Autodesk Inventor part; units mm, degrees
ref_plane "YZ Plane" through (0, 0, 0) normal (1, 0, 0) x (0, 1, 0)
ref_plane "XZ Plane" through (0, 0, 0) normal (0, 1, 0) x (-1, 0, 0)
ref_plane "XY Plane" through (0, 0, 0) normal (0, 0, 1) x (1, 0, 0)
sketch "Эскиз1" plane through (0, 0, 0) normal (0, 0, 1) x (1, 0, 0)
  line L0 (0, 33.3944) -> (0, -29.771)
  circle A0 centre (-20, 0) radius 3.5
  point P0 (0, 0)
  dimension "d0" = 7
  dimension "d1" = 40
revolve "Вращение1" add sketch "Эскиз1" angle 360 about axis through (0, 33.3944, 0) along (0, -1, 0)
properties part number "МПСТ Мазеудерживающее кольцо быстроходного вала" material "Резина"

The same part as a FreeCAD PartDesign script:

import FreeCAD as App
import Part
import Sketcher

V = App.Vector

doc = App.newDocument("Part")
body = doc.addObject("PartDesign::Body", "Body")

sketch1 = doc.addObject("Sketcher::SketchObject", "Sketch")
body.addObject(sketch1)
sketch1.AttachmentSupport = (doc.XY_Plane, [""])
sketch1.MapMode = "FlatFace"
sketch1.addGeometry(Part.Circle(V(-20, 0, 0), V(0, 0, 1), 3.5), False)
sketch1.addConstraint([
    Sketcher.Constraint("PointOnObject", 0, 3, -1),
    Sketcher.Constraint("Diameter", 0, 7.0),
    Sketcher.Constraint("DistanceX", 0, 3, -1, 1, 20.0),
])
revolution = doc.addObject("PartDesign::Revolution", "Revolution")
body.addObject(revolution)
revolution.Profile = sketch1
revolution.ReferenceAxis = (sketch1, ["V_Axis"])
revolution.Angle = 360

doc.recompute()
